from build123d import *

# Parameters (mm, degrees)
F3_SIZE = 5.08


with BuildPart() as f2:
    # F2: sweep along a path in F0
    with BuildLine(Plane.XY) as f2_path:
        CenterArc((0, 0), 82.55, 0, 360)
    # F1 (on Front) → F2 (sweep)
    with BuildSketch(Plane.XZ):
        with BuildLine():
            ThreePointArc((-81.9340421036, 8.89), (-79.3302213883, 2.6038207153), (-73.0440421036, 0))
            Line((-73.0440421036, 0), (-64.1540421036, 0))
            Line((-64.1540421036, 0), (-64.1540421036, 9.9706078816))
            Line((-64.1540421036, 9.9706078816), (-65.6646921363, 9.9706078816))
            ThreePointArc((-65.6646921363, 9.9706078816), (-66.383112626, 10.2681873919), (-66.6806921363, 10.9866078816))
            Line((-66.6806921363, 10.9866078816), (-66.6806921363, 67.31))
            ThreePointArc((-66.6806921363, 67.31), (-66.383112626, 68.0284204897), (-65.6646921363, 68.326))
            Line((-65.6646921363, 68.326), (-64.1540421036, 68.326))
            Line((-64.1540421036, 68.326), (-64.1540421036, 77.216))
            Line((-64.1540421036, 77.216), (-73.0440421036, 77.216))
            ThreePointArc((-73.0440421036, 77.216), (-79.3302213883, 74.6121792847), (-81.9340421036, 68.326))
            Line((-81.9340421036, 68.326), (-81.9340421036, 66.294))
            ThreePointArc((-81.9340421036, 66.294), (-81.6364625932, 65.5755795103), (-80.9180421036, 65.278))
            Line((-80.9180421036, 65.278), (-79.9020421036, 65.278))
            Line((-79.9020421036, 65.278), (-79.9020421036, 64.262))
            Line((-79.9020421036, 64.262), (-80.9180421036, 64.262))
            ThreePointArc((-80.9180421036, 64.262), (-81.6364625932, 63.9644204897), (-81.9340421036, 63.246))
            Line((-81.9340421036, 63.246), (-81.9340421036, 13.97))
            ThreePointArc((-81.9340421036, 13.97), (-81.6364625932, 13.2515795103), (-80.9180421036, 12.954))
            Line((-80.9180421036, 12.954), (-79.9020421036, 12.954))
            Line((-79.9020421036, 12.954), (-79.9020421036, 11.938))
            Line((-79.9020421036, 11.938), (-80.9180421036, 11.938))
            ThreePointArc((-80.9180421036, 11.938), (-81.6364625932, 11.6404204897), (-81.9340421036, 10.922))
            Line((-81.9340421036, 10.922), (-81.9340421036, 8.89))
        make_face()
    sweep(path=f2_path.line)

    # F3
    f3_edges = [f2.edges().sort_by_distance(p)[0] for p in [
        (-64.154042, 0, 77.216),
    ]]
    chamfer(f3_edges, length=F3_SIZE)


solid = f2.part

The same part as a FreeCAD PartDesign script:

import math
import FreeCAD as App
import Part
import Sketcher

V = App.Vector
Q = App.Units.Quantity


def edges_at(feature, points):
    """Names of the edges that pass closest to the given points."""
    edges = feature.Shape.Edges
    near = lambda p: min(range(len(edges)), key=lambda i: edges[i].distToShape(Part.Vertex(*p))[0])
    return sorted({f"Edge{near(p) + 1}" for p in points})

doc = App.newDocument("Part")
params = doc.addObject("Spreadsheet::Sheet", "Params")
for row, (alias, value) in enumerate([
    ("sketch1_radius", "0.35 in"),
    ("sketch1_radius2", "0.04 in"),
    ("sketch1_width", "0.04 in"),
    ("sketch1_height", "0.08 in"),
    ("sketch1_height2", "1.94 in"),
    ("sketch2_diameter", "6.5 in"),
    ("chamfer_size", "0.2 in"),
], start=1):
    params.set(f"A{row}", alias)
    params.set(f"B{row}", "=" + value)
    params.setAlias(f"B{row}", alias)

body = doc.addObject("PartDesign::Body", "Body")

# Sketch on XZ plane
sketch1 = body.newObject("Sketcher::SketchObject", "Sketch")
sketch1.AttachmentSupport = (doc.getObject("XZ_Plane"), [""])
sketch1.MapMode = "FlatFace"
sketch1.addGeometry([
    Part.ArcOfCircle(Part.Circle(V(-73.044042, 8.89, 0), V(0, 0, 1), 8.89), math.radians(180), math.radians(270)),  # 0
    Part.LineSegment(V(-73.044042, 0, 0), V(-64.154042, 0, 0)),  # 1
    Part.LineSegment(V(-64.154042, 0, 0), V(-64.154042, 9.970608, 0)),  # 2
    Part.LineSegment(V(-64.154042, 9.970608, 0), V(-65.664692, 9.970608, 0)),  # 3
    Part.ArcOfCircle(Part.Circle(V(-65.664692, 10.986608, 0), V(0, 0, 1), 1.016), math.radians(180), math.radians(270)),  # 4
    Part.LineSegment(V(-66.680692, 10.986608, 0), V(-66.680692, 67.31, 0)),  # 5
    Part.ArcOfCircle(Part.Circle(V(-65.664692, 67.31, 0), V(0, 0, 1), 1.016), math.radians(90), math.radians(180)),  # 6
    Part.LineSegment(V(-65.664692, 68.326, 0), V(-64.154042, 68.326, 0)),  # 7
    Part.LineSegment(V(-64.154042, 68.326, 0), V(-64.154042, 77.216, 0)),  # 8
    Part.LineSegment(V(-64.154042, 77.216, 0), V(-73.044042, 77.216, 0)),  # 9
    Part.ArcOfCircle(Part.Circle(V(-73.044042, 68.326, 0), V(0, 0, 1), 8.89), math.radians(90), math.radians(180)),  # 10
    Part.LineSegment(V(-81.934042, 68.326, 0), V(-81.934042, 66.294, 0)),  # 11
    Part.ArcOfCircle(Part.Circle(V(-80.918042, 66.294, 0), V(0, 0, 1), 1.016), math.radians(180), math.radians(270)),  # 12
    Part.LineSegment(V(-80.918042, 65.278, 0), V(-79.902042, 65.278, 0)),  # 13
    Part.LineSegment(V(-79.902042, 65.278, 0), V(-79.902042, 64.262, 0)),  # 14
    Part.LineSegment(V(-79.902042, 64.262, 0), V(-80.918042, 64.262, 0)),  # 15
    Part.ArcOfCircle(Part.Circle(V(-80.918042, 63.246, 0), V(0, 0, 1), 1.016), math.radians(90), math.radians(180)),  # 16
    Part.LineSegment(V(-81.934042, 63.246, 0), V(-81.934042, 13.97, 0)),  # 17
    Part.ArcOfCircle(Part.Circle(V(-80.918042, 13.97, 0), V(0, 0, 1), 1.016), math.radians(180), math.radians(270)),  # 18
    Part.LineSegment(V(-80.918042, 12.954, 0), V(-79.902042, 12.954, 0)),  # 19
    Part.LineSegment(V(-79.902042, 12.954, 0), V(-79.902042, 11.938, 0)),  # 20
    Part.LineSegment(V(-79.902042, 11.938, 0), V(-80.918042, 11.938, 0)),  # 21
    Part.ArcOfCircle(Part.Circle(V(-80.918042, 10.922, 0), V(0, 0, 1), 1.016), math.radians(90), math.radians(180)),  # 22
    Part.LineSegment(V(-81.934042, 10.922, 0), V(-81.934042, 8.89, 0)),  # 23
], False)
sketch1.addConstraint([
    Sketcher.Constraint("Tangent", 0, 2, 1, 1),
    Sketcher.Constraint("Coincident", 1, 2, 2, 1),
    Sketcher.Constraint("Coincident", 2, 2, 3, 1),
    Sketcher.Constraint("Tangent", 3, 2, 4, 2),
    Sketcher.Constraint("Tangent", 4, 1, 5, 1),
    Sketcher.Constraint("Tangent", 5, 2, 6, 2),
    Sketcher.Constraint("Tangent", 6, 1, 7, 1),
    Sketcher.Constraint("Coincident", 7, 2, 8, 1),
    Sketcher.Constraint("Coincident", 8, 2, 9, 1),
    Sketcher.Constraint("Tangent", 9, 2, 10, 1),
    Sketcher.Constraint("Tangent", 10, 2, 11, 1),
    Sketcher.Constraint("Tangent", 11, 2, 12, 1),
    Sketcher.Constraint("Tangent", 12, 2, 13, 1),
    Sketcher.Constraint("Coincident", 13, 2, 14, 1),
    Sketcher.Constraint("Coincident", 14, 2, 15, 1),
    Sketcher.Constraint("Tangent", 15, 2, 16, 1),
    Sketcher.Constraint("Tangent", 16, 2, 17, 1),
    Sketcher.Constraint("Tangent", 17, 2, 18, 1),
    Sketcher.Constraint("Tangent", 18, 2, 19, 1),
    Sketcher.Constraint("Coincident", 19, 2, 20, 1),
    Sketcher.Constraint("Coincident", 20, 2, 21, 1),
    Sketcher.Constraint("Tangent", 21, 2, 22, 1),
    Sketcher.Constraint("Tangent", 22, 2, 23, 1),
    Sketcher.Constraint("Tangent", 23, 2, 0, 1),
    Sketcher.Constraint("Horizontal", 1),
    Sketcher.Constraint("Vertical", 2),
    Sketcher.Constraint("Horizontal", 3),
    Sketcher.Constraint("Vertical", 5),
    Sketcher.Constraint("Horizontal", 7),
    Sketcher.Constraint("Vertical", 8),
    Sketcher.Constraint("Horizontal", 9),
    Sketcher.Constraint("Vertical", 11),
    Sketcher.Constraint("Horizontal", 13),
    Sketcher.Constraint("Vertical", 14),
    Sketcher.Constraint("Horizontal", 15),
    Sketcher.Constraint("Vertical", 17),
    Sketcher.Constraint("Horizontal", 19),
    Sketcher.Constraint("Vertical", 20),
    Sketcher.Constraint("Horizontal", 21),
    Sketcher.Constraint("Vertical", 23),
    Sketcher.Constraint("Equal", 4, 6),
    Sketcher.Constraint("Equal", 0, 10),
    Sketcher.Constraint("Equal", 6, 12),
    Sketcher.Constraint("Equal", 12, 16),
    Sketcher.Constraint("Equal", 16, 18),
    Sketcher.Constraint("Equal", 18, 22),
    Sketcher.Constraint("PointOnObject", 0, 2, -1),
    Sketcher.Constraint("Horizontal", 10, 3, 6, 1),
    Sketcher.Constraint("Vertical", 0, 3, 10, 3),
    Sketcher.Constraint("Vertical", 12, 3, 16, 3),
    Sketcher.Constraint("Vertical", 2, 2, 7, 2),
    Sketcher.Constraint("Vertical", 14, 2, 19, 2),
    Sketcher.Constraint("Equal", 9, 8),
    Sketcher.Constraint("Equal", 21, 14),
    Sketcher.Constraint("Equal", 14, 20),
    Sketcher.Constraint("Equal", 11, 23),
    Sketcher.Constraint("Radius", 0, Q("0.35 in")),
    Sketcher.Constraint("Radius", 4, Q("0.04 in")),
    Sketcher.Constraint("DistanceX", 13, 1, 13, 2, Q("0.04 in")),
    Sketcher.Constraint("DistanceY", 11, 2, 11, 1, Q("0.08 in")),
    Sketcher.Constraint("DistanceY", 17, 2, 17, 1, Q("1.94 in")),
    Sketcher.Constraint("DistanceX", 3, 2, 3, 1, 1.51065),
    Sketcher.Constraint("DistanceY", 2, 1, 2, 2, 9.970608),
    Sketcher.Constraint("DistanceX", 0, 3, -1, 1, 73.044042),
])
sketch1.setExpression("Constraints[56]", "Params.sketch1_radius")
sketch1.setExpression("Constraints[57]", "Params.sketch1_radius2")
sketch1.setExpression("Constraints[58]", "Params.sketch1_width")
sketch1.setExpression("Constraints[59]", "Params.sketch1_height")
sketch1.setExpression("Constraints[60]", "Params.sketch1_height2")

# Sketch on XY plane
sketch2 = body.newObject("Sketcher::SketchObject", "Sketch001")
sketch2.AttachmentSupport = (doc.getObject("XY_Plane"), [""])
sketch2.MapMode = "FlatFace"
sketch2.addGeometry(Part.Circle(V(0, 0, 0), V(0, 0, 1), 82.55), False)
sketch2.addConstraint([
    Sketcher.Constraint("Coincident", 0, 3, -1, 1),
    Sketcher.Constraint("Diameter", 0, Q("6.5 in")),
])
sketch2.setExpression("Constraints[1]", "Params.sketch2_diameter")
doc.recompute()

additivepipe = body.newObject("PartDesign::AdditivePipe", "AdditivePipe")
additivepipe.Profile = sketch1
additivepipe.Spine = (sketch2, ["Edge1"])
doc.recompute()

chamfer = body.newObject("PartDesign::Chamfer", "Chamfer")
chamfer.Base = (additivepipe, edges_at(additivepipe, [(-64.154, 0, 77.216)]))
chamfer.setExpression("Size", "Params.chamfer_size")

doc.recompute()
